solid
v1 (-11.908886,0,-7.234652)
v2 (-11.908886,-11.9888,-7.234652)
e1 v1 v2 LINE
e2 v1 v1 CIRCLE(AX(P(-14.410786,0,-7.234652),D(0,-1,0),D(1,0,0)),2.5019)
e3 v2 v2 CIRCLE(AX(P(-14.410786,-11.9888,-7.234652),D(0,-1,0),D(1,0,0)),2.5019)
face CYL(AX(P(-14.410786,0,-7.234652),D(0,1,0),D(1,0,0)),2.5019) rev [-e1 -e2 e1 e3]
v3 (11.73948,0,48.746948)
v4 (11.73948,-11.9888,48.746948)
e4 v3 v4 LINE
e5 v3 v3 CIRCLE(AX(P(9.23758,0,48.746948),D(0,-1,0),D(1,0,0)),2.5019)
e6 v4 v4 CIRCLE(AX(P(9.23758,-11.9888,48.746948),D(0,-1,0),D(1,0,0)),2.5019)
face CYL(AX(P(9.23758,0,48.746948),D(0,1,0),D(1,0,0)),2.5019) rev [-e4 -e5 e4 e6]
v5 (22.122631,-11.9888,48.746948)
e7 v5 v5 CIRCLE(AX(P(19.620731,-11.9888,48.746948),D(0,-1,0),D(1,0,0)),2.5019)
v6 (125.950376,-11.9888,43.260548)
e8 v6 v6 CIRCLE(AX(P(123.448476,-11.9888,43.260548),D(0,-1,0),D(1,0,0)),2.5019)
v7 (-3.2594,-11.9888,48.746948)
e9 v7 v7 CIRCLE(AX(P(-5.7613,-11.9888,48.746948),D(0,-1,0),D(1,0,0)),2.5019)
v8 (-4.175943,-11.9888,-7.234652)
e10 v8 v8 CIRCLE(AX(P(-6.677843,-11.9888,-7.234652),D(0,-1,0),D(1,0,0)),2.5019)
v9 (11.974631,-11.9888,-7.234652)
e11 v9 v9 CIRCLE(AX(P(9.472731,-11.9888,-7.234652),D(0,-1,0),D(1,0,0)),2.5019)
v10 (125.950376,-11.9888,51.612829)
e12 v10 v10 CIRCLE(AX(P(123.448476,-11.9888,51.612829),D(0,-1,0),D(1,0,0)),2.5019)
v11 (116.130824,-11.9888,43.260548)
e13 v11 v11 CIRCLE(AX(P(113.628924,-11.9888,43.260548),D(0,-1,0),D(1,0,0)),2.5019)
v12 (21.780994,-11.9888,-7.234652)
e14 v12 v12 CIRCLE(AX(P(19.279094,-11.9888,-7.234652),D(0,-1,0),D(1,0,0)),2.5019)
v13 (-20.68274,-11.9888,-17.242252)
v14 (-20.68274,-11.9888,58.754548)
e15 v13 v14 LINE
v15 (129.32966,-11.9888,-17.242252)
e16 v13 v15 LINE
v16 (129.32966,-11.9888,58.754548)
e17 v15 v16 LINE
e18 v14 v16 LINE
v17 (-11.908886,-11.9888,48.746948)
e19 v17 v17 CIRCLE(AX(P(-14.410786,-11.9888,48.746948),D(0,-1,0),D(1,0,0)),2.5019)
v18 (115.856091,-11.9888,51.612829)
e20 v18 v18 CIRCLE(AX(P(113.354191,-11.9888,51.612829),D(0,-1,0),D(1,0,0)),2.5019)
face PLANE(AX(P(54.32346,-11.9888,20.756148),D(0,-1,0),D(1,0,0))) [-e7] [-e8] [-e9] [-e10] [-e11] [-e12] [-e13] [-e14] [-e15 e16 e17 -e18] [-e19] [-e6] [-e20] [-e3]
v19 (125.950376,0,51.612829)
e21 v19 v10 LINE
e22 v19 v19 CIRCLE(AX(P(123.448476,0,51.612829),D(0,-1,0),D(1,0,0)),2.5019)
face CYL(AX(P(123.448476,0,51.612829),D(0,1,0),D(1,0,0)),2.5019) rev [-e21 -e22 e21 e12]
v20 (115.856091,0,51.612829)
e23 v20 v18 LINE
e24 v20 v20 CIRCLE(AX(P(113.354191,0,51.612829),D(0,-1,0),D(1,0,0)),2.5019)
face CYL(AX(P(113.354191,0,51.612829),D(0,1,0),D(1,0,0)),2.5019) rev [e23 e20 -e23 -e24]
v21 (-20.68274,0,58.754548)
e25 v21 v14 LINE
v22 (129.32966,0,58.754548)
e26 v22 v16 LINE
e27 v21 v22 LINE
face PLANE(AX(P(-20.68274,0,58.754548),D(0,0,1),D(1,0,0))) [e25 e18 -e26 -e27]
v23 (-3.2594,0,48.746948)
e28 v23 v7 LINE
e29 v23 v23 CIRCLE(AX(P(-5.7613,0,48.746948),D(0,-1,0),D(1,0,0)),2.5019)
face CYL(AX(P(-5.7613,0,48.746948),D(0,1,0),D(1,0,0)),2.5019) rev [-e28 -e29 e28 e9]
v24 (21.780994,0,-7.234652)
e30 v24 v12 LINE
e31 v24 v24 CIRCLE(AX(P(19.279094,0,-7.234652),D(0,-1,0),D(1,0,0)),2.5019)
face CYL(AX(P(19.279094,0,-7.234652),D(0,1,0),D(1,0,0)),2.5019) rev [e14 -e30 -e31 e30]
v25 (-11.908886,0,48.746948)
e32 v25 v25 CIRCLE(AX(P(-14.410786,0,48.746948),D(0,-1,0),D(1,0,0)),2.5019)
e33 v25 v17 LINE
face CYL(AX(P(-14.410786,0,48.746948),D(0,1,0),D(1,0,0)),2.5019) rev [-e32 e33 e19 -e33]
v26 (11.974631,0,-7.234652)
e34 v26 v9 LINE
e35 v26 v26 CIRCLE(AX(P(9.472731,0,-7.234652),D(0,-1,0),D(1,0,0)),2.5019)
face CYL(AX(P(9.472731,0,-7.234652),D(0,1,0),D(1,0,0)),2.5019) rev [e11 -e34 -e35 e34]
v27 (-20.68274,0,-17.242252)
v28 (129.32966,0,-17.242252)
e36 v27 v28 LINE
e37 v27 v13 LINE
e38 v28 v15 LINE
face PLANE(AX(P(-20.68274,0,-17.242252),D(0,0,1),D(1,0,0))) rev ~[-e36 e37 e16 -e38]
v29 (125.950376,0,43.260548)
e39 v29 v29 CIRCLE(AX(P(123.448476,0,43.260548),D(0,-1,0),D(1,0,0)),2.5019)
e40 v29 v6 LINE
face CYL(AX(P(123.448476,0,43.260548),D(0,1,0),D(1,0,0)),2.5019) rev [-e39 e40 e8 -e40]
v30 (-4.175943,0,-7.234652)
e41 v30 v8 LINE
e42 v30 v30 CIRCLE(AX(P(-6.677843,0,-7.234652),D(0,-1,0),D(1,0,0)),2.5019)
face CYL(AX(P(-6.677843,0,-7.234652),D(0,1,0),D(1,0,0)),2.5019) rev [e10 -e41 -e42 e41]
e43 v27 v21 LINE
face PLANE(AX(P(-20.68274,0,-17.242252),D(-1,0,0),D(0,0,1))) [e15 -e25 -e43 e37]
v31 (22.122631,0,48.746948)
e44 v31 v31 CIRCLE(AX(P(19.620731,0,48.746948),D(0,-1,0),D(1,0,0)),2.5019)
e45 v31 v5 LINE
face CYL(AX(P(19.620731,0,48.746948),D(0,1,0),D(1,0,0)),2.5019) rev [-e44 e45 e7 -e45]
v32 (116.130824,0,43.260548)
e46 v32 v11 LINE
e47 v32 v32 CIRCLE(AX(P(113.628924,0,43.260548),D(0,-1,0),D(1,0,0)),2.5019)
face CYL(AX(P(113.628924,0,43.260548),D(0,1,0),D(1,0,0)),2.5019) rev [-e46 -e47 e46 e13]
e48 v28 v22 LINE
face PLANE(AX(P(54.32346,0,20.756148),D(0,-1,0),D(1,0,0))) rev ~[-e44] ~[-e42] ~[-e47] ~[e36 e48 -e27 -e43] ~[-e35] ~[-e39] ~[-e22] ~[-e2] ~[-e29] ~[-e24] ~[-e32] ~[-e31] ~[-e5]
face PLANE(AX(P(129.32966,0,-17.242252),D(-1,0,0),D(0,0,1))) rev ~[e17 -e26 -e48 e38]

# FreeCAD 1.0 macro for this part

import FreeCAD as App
import Part
import Sketcher
Q = App.Units.Quantity


def add_polygon(sketch, points):
    """Adds a closed chain of lines whose ends are joined by coincident constraints."""
    first, n = sketch.GeometryCount, len(points)
    for a, b in zip(points, points[1:] + points[:1]):
        sketch.addGeometry(Part.LineSegment(App.Vector(*a, 0), App.Vector(*b, 0)), False)
    for i in range(n):
        sketch.addConstraint(Sketcher.Constraint("Coincident", first + i, 2, first + (i + 1) % n, 1))

doc = App.newDocument("Part")
body = doc.addObject("PartDesign::Body", "Body")

# Sketch on XZ plane
sketch1 = body.newObject("Sketcher::SketchObject", "Sketch")
sketch1.AttachmentSupport = (doc.getObject("XZ_Plane"), [""])
sketch1.MapMode = "FlatFace"
add_polygon(sketch1, [(-20.7, 58.8), (-20.7, -17.2), (129.3, -17.2), (129.3, 58.8)])  # lines 0-3
sketch1.addGeometry(Part.Circle(App.Vector(-14.4, -7.2, 0), App.Vector(0, 0, 1), 2.5), False)  # 4
sketch1.addGeometry(Part.Circle(App.Vector(-6.7, -7.2, 0), App.Vector(0, 0, 1), 2.5), False)  # 5
sketch1.addGeometry(Part.Circle(App.Vector(9.5, -7.2, 0), App.Vector(0, 0, 1), 2.5), False)  # 6
sketch1.addGeometry(Part.Circle(App.Vector(19.3, -7.2, 0), App.Vector(0, 0, 1), 2.5), False)  # 7
sketch1.addGeometry(Part.Circle(App.Vector(-14.4, 48.7, 0), App.Vector(0, 0, 1), 2.5), False)  # 8
sketch1.addGeometry(Part.Circle(App.Vector(-5.8, 48.7, 0), App.Vector(0, 0, 1), 2.5), False)  # 9
sketch1.addGeometry(Part.Circle(App.Vector(9.2, 48.7, 0), App.Vector(0, 0, 1), 2.5), False)  # 10
sketch1.addGeometry(Part.Circle(App.Vector(19.6, 48.7, 0), App.Vector(0, 0, 1), 2.5), False)  # 11
sketch1.addGeometry(Part.Circle(App.Vector(113.6, 43.3, 0), App.Vector(0, 0, 1), 2.5), False)  # 12
sketch1.addGeometry(Part.Circle(App.Vector(123.4, 43.3, 0), App.Vector(0, 0, 1), 2.5), False)  # 13
sketch1.addGeometry(Part.Circle(App.Vector(113.4, 51.6, 0), App.Vector(0, 0, 1), 2.5), False)  # 14
sketch1.addGeometry(Part.Circle(App.Vector(123.4, 51.6, 0), App.Vector(0, 0, 1), 2.5), False)  # 15
sketch1.addConstraint(Sketcher.Constraint("Vertical", 0))
sketch1.addConstraint(Sketcher.Constraint("Horizontal", 1))
sketch1.addConstraint(Sketcher.Constraint("Vertical", 2))
sketch1.addConstraint(Sketcher.Constraint("Horizontal", 3))
sketch1.addConstraint(Sketcher.Constraint("Equal", 4, 5))
sketch1.addConstraint(Sketcher.Constraint("Equal", 5, 6))
sketch1.addConstraint(Sketcher.Constraint("Equal", 6, 7))
sketch1.addConstraint(Sketcher.Constraint("Equal", 7, 8))
sketch1.addConstraint(Sketcher.Constraint("Equal", 8, 9))
sketch1.addConstraint(Sketcher.Constraint("Equal", 9, 10))
sketch1.addConstraint(Sketcher.Constraint("Equal", 10, 11))
sketch1.addConstraint(Sketcher.Constraint("Equal", 11, 12))
sketch1.addConstraint(Sketcher.Constraint("Equal", 12, 13))
sketch1.addConstraint(Sketcher.Constraint("Equal", 13, 14))
sketch1.addConstraint(Sketcher.Constraint("Equal", 14, 15))
sketch1.addConstraint(Sketcher.Constraint("Horizontal", 4, 3, 5, 3))
sketch1.addConstraint(Sketcher.Constraint("Horizontal", 5, 3, 6, 3))
sketch1.addConstraint(Sketcher.Constraint("Horizontal", 6, 3, 7, 3))
sketch1.addConstraint(Sketcher.Constraint("Horizontal", 8, 3, 9, 3))
sketch1.addConstraint(Sketcher.Constraint("Horizontal", 9, 3, 10, 3))
sketch1.addConstraint(Sketcher.Constraint("Horizontal", 10, 3, 11, 3))
sketch1.addConstraint(Sketcher.Constraint("Horizontal", 12, 3, 13, 3))
sketch1.addConstraint(Sketcher.Constraint("Horizontal", 14, 3, 15, 3))
sketch1.addConstraint(Sketcher.Constraint("Vertical", 4, 3, 8, 3))
sketch1.addConstraint(Sketcher.Constraint("Vertical", 13, 3, 15, 3))
sketch1.addConstraint(Sketcher.Constraint("Diameter", 4, Q("0.197 in")))
sketch1.addConstraint(Sketcher.Constraint("DistanceX", 1, 1, 1, 2, Q("5.906 in")))
sketch1.addConstraint(Sketcher.Constraint("DistanceY", 0, 2, 0, 1, Q("2.992 in")))
sketch1.addConstraint(Sketcher.Constraint("DistanceY", 13, 3, 2, 2, Q("0.61 in")))
sketch1.addConstraint(Sketcher.Constraint("DistanceY", 4, 3, 8, 3, Q("2.204 in")))
sketch1.addConstraint(Sketcher.Constraint("DistanceY", 12, 3, 11, 3, Q("0.216 in")))
sketch1.addConstraint(Sketcher.Constraint("DistanceX", 9, 3, -1, 1, 5.7613))
sketch1.addConstraint(Sketcher.Constraint("DistanceX", 6, 3, 11, 3, 10.148))
sketch1.addConstraint(Sketcher.Constraint("DistanceY", 4, 3, -1, 1, 7.234652))
sketch1.addConstraint(Sketcher.Constraint("DistanceX", -1, 1, 6, 3, 9.472731))
sketch1.addConstraint(Sketcher.Constraint("DistanceX", -1, 1, 10, 3, 9.23758))
sketch1.addConstraint(Sketcher.Constraint("DistanceX", -1, 1, 14, 3, 113.354191))
sketch1.addConstraint(Sketcher.Constraint("DistanceY", -1, 1, 14, 3, 51.612829))
sketch1.addConstraint(Sketcher.Constraint("DistanceX", 0, 2, -1, 1, 20.68274))
sketch1.addConstraint(Sketcher.Constraint("DistanceX", 4, 3, 7, 3, 33.68988))
sketch1.addConstraint(Sketcher.Constraint("DistanceX", 7, 3, 12, 3, 94.34983))
sketch1.addConstraint(Sketcher.Constraint("DistanceX", 7, 3, 13, 3, 104.169382))
sketch1.addConstraint(Sketcher.Constraint("DistanceX", 4, 3, -1, 1, 14.410786))
sketch1.addConstraint(Sketcher.Constraint("DistanceX", 5, 3, -1, 1, 6.677843))
pad1 = body.newObject("PartDesign::Pad", "Pad")
pad1.Profile = sketch1
pad1.Length = Q("0.472 in")

doc.recompute()
